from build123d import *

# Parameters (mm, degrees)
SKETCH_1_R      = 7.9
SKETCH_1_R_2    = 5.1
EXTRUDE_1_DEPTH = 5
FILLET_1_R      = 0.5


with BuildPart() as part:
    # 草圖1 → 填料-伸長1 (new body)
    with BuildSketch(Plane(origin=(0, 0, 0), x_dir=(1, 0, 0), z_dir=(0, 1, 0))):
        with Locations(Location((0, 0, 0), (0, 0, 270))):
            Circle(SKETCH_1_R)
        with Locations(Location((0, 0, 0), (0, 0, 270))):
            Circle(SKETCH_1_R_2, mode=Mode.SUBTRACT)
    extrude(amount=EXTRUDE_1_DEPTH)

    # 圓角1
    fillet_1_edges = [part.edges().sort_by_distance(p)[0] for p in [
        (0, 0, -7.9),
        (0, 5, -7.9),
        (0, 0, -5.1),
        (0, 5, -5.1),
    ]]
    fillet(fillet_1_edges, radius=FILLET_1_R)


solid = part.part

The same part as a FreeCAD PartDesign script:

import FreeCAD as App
import Part
import Sketcher
from FreeCAD import Vector
Q = App.Units.Quantity


def edges_at(feature, points):
    """Names of the edges that pass closest to the given points."""
    edges = feature.Shape.Edges
    near = lambda p: min(range(len(edges)), key=lambda i: edges[i].distToShape(Part.Vertex(*p))[0])
    return sorted({f"Edge{near(p) + 1}" for p in points})

doc = App.newDocument("Part")
body = doc.addObject("PartDesign::Body", "Body")

sketch1 = doc.addObject("Sketcher::SketchObject", "Sketch")
body.addObject(sketch1)
sketch1.AttachmentSupport = (doc.XZ_Plane, [""])
sketch1.MapMode = "FlatFace"
sketch1.addGeometry([
    Part.Circle(Vector(0, 0, 0), Vector(0, 0, 1), 8),
    Part.Circle(Vector(0, 0, 0), Vector(0, 0, 1), 5),
], False)
sketch1.addConstraint([
    Sketcher.Constraint("Coincident", 0, 3, -1, 1),
    Sketcher.Constraint("Coincident", 1, 3, -1, 1),
    Sketcher.Constraint("Diameter", 0, Q("15.8 mm")),
    Sketcher.Constraint("Diameter", 1, Q("10.2 mm")),
])
pad1 = doc.addObject("PartDesign::Pad", "Pad")
body.addObject(pad1)
pad1.Profile = sketch1
pad1.Length = 5
pad1.Reversed = True
doc.recompute()

fillet = doc.addObject("PartDesign::Fillet", "Fillet")
body.addObject(fillet)
fillet.Base = (pad1, edges_at(pad1, [
    (0, 0, -7.9),
    (0, 5, -7.9),
    (0, 0, -5.1),
    (0, 5, -5.1),
]))
fillet.Radius = 0.5

doc.recompute()
